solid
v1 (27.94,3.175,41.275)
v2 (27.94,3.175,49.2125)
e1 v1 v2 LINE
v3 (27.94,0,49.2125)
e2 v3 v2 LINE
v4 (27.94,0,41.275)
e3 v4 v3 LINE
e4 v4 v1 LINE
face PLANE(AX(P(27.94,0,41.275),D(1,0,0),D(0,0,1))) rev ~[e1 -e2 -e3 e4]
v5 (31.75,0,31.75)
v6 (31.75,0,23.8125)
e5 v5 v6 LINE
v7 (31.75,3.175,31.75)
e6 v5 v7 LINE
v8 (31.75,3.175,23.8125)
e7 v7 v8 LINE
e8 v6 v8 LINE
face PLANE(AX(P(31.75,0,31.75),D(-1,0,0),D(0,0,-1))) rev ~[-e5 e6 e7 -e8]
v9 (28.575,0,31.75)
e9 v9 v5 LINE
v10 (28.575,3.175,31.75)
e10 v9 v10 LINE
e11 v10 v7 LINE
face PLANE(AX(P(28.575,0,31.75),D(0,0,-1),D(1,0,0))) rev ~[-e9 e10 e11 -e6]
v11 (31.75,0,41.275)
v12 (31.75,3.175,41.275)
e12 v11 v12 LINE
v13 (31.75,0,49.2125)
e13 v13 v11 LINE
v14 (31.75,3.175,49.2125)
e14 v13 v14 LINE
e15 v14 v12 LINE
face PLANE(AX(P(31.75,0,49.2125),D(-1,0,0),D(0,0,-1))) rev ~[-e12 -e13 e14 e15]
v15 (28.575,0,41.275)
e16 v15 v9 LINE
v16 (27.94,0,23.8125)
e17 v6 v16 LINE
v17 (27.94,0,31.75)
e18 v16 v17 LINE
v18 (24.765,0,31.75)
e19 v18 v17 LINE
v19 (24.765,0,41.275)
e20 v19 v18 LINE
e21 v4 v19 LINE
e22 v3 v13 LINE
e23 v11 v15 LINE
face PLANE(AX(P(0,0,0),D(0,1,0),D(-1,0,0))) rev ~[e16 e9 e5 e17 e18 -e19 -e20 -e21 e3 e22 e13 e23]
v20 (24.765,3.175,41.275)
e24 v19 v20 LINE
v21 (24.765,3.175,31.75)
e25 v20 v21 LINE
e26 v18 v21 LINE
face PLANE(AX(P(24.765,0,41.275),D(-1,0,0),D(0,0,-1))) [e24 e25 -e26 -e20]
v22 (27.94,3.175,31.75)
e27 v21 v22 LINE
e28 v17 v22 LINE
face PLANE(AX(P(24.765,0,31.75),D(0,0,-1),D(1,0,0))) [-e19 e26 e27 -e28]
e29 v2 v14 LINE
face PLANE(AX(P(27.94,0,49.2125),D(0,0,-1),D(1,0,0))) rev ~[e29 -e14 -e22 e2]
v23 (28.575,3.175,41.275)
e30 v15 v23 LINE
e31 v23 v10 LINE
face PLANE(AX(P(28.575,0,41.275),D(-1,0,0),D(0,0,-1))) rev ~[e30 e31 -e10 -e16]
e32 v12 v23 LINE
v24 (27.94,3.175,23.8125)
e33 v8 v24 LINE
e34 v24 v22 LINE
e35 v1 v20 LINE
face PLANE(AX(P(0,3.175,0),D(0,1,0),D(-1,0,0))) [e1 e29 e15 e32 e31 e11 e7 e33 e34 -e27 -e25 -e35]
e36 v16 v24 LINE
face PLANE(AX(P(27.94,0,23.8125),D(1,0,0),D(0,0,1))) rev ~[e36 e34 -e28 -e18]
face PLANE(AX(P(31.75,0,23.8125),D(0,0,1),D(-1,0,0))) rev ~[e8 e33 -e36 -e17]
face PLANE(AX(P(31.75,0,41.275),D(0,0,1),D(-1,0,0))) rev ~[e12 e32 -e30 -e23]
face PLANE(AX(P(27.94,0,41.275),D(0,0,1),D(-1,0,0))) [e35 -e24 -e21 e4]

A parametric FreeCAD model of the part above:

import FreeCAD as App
import Part
import Sketcher
from FreeCAD import Vector
Q = App.Units.Quantity


def add_polygon(sketch, points):
    """Adds a closed chain of lines whose ends are joined by coincident constraints."""
    first, n = sketch.GeometryCount, len(points)
    for a, b in zip(points, points[1:] + points[:1]):
        sketch.addGeometry(Part.LineSegment(App.Vector(*a, 0), App.Vector(*b, 0)), False)
    for i in range(n):
        sketch.addConstraint(Sketcher.Constraint("Coincident", first + i, 2, first + (i + 1) % n, 1))

doc = App.newDocument("Part")
body = doc.addObject("PartDesign::Body", "Body")

# Sketch on XZ plane
sketch1 = doc.addObject("Sketcher::SketchObject", "Sketch")
body.addObject(sketch1)
sketch1.AttachmentSupport = (doc.XZ_Plane, [""])
sketch1.MapMode = "FlatFace"
add_polygon(sketch1, [(27.9, 41.3), (27.9, 49.2), (31.8, 49.2), (31.8, 41.3), (28.6, 41.3), (28.6, 31.8), (31.8, 31.8), (31.8, 23.8), (27.9, 23.8), (27.9, 31.8), (24.8, 31.8), (24.8, 41.3)])  # lines 0-11
sketch1.addConstraint(Sketcher.Constraint("Vertical", 0))
sketch1.addConstraint(Sketcher.Constraint("Horizontal", 1))
sketch1.addConstraint(Sketcher.Constraint("Vertical", 2))
sketch1.addConstraint(Sketcher.Constraint("Horizontal", 3))
sketch1.addConstraint(Sketcher.Constraint("Vertical", 4))
sketch1.addConstraint(Sketcher.Constraint("Horizontal", 5))
sketch1.addConstraint(Sketcher.Constraint("Vertical", 6))
sketch1.addConstraint(Sketcher.Constraint("Horizontal", 7))
sketch1.addConstraint(Sketcher.Constraint("Vertical", 8))
sketch1.addConstraint(Sketcher.Constraint("Horizontal", 9))
sketch1.addConstraint(Sketcher.Constraint("Vertical", 10))
sketch1.addConstraint(Sketcher.Constraint("Horizontal", 11))
sketch1.addConstraint(Sketcher.Constraint("Horizontal", 5, 2, 8, 2))
sketch1.addConstraint(Sketcher.Constraint("Horizontal", 3, 2, 10, 2))
sketch1.addConstraint(Sketcher.Constraint("Vertical", 2, 2, 5, 2))
sketch1.addConstraint(Sketcher.Constraint("Vertical", 0, 2, 7, 2))
sketch1.addConstraint(Sketcher.Constraint("Equal", 5, 9))
sketch1.addConstraint(Sketcher.Constraint("Equal", 2, 6))
sketch1.addConstraint(Sketcher.Constraint("DistanceY", 6, 2, 1, 2, Q("1 in")))
sketch1.addConstraint(Sketcher.Constraint("DistanceX", 1, 1, 1, 2, Q("0.15 in")))
sketch1.addConstraint(Sketcher.Constraint("DistanceX", 3, 2, 3, 1, Q("0.125 in")))
sketch1.addConstraint(Sketcher.Constraint("DistanceY", 0, 1, 0, 2, Q("0.3125 in")))
sketch1.addConstraint(Sketcher.Constraint("DistanceX", -1, 1, 0, 2, Q("1.1 in")))
sketch1.addConstraint(Sketcher.Constraint("DistanceY", -1, 1, 4, 2, Q("1.25 in")))
pad1 = doc.addObject("PartDesign::Pad", "Pad")
body.addObject(pad1)
pad1.Profile = sketch1
pad1.Length = Q("0.125 in")
pad1.Reversed = True

doc.recompute()
